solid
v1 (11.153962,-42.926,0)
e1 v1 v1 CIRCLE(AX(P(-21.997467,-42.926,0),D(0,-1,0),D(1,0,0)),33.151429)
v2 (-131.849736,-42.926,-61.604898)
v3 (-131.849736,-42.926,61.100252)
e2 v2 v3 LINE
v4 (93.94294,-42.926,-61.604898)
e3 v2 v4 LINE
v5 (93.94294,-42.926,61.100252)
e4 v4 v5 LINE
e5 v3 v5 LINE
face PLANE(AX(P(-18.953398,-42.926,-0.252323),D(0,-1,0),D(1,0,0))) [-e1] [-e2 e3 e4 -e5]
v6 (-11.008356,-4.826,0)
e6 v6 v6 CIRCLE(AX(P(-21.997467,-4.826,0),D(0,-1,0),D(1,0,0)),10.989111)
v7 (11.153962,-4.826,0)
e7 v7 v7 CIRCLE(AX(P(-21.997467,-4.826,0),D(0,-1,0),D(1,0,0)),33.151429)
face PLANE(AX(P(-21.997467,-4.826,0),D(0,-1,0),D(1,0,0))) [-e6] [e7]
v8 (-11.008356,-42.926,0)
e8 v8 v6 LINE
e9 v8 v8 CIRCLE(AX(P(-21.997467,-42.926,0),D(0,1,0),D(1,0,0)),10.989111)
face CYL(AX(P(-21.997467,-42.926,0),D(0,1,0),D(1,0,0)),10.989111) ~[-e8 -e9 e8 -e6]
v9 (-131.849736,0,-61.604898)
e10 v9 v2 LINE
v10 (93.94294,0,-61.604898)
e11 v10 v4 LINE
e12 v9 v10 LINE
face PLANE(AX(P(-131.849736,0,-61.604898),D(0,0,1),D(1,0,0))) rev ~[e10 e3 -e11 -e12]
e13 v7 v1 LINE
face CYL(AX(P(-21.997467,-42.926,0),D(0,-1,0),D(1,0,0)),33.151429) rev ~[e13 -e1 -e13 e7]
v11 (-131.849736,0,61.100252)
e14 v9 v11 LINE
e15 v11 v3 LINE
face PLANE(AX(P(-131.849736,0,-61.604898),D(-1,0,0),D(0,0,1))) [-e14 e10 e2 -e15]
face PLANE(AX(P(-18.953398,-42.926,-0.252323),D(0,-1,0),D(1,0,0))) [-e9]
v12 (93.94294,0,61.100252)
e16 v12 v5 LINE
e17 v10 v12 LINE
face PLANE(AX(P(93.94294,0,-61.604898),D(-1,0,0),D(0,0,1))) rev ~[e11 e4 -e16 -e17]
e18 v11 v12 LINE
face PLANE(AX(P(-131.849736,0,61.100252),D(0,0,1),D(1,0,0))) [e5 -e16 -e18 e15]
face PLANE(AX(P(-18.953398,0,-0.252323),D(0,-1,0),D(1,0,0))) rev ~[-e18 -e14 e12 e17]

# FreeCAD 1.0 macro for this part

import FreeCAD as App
import Part
import Sketcher
from FreeCAD import Vector
Q = App.Units.Quantity


def add_polygon(sketch, points):
    """Adds a closed chain of lines whose ends are joined by coincident constraints."""
    first, n = sketch.GeometryCount, len(points)
    for a, b in zip(points, points[1:] + points[:1]):
        sketch.addGeometry(Part.LineSegment(App.Vector(*a, 0), App.Vector(*b, 0)), False)
    for i in range(n):
        sketch.addConstraint(Sketcher.Constraint("Coincident", first + i, 2, first + (i + 1) % n, 1))

doc = App.newDocument("Part")
params = doc.addObject("Spreadsheet::Sheet", "Params")
for row, (alias, value) in enumerate([
    ("pad1_length", "1.69 in"),
    ("pocket1_length", "3 in"),
], start=1):
    params.set(f"A{row}", alias)
    params.set(f"B{row}", "=" + value)
    params.setAlias(f"B{row}", alias)

body = doc.addObject("PartDesign::Body", "Body")

# Sketch on XZ plane
sketch1 = body.newObject("Sketcher::SketchObject", "Sketch")
sketch1.AttachmentSupport = (doc.getObject("XZ_Plane"), [""])
sketch1.MapMode = "FlatFace"
add_polygon(sketch1, [(-132, 61), (-132, -62), (94, -62), (94, 61)])  # lines 0-3
sketch1.addConstraint([
    Sketcher.Constraint("Vertical", 0),
    Sketcher.Constraint("Horizontal", 1),
    Sketcher.Constraint("Vertical", 2),
    Sketcher.Constraint("Horizontal", 3),
    Sketcher.Constraint("DistanceY", 0, 2, 0, 1, Q("122.70515 mm")),
    Sketcher.Constraint("DistanceX", 1, 1, 1, 2, Q("225.792676 mm")),
    Sketcher.Constraint("DistanceX", -1, 1, 1, 2, Q("93.94294 mm")),
    Sketcher.Constraint("DistanceY", -1, 1, 2, 2, Q("61.100252 mm")),
])
pad1 = body.newObject("PartDesign::Pad", "Pad")
pad1.Profile = sketch1
pad1.setExpression("Length", "Params.pad1_length")

# Sketch on XZ plane
sketch2 = body.newObject("Sketcher::SketchObject", "Sketch001")
sketch2.AttachmentSupport = (doc.getObject("XZ_Plane"), [""])
sketch2.MapMode = "FlatFace"
sketch2.AttachmentOffset = App.Placement(Vector(0, 0, 1.69 * 25.4), App.Rotation())
sketch2.addGeometry([
    Part.Circle(Vector(-22, 0, 0), Vector(0, 0, 1), 33),
    Part.Circle(Vector(-22, 0, 0), Vector(0, 0, 1), 11),
], False)
sketch2.addConstraint([
    Sketcher.Constraint("Coincident", 1, 3, 0, 3),
    Sketcher.Constraint("PointOnObject", 0, 3, -1),
    Sketcher.Constraint("Diameter", 0, Q("66.302858 mm")),
    Sketcher.Constraint("Diameter", 1, Q("21.978222 mm")),
    Sketcher.Constraint("DistanceX", 0, 3, -1, 1, Q("21.997467 mm")),
])
pocket1 = body.newObject("PartDesign::Pocket", "Pocket")
pocket1.Profile = sketch2
pocket1.setExpression("Length", "Params.pocket1_length")
pocket1.Midplane = True

doc.recompute()
